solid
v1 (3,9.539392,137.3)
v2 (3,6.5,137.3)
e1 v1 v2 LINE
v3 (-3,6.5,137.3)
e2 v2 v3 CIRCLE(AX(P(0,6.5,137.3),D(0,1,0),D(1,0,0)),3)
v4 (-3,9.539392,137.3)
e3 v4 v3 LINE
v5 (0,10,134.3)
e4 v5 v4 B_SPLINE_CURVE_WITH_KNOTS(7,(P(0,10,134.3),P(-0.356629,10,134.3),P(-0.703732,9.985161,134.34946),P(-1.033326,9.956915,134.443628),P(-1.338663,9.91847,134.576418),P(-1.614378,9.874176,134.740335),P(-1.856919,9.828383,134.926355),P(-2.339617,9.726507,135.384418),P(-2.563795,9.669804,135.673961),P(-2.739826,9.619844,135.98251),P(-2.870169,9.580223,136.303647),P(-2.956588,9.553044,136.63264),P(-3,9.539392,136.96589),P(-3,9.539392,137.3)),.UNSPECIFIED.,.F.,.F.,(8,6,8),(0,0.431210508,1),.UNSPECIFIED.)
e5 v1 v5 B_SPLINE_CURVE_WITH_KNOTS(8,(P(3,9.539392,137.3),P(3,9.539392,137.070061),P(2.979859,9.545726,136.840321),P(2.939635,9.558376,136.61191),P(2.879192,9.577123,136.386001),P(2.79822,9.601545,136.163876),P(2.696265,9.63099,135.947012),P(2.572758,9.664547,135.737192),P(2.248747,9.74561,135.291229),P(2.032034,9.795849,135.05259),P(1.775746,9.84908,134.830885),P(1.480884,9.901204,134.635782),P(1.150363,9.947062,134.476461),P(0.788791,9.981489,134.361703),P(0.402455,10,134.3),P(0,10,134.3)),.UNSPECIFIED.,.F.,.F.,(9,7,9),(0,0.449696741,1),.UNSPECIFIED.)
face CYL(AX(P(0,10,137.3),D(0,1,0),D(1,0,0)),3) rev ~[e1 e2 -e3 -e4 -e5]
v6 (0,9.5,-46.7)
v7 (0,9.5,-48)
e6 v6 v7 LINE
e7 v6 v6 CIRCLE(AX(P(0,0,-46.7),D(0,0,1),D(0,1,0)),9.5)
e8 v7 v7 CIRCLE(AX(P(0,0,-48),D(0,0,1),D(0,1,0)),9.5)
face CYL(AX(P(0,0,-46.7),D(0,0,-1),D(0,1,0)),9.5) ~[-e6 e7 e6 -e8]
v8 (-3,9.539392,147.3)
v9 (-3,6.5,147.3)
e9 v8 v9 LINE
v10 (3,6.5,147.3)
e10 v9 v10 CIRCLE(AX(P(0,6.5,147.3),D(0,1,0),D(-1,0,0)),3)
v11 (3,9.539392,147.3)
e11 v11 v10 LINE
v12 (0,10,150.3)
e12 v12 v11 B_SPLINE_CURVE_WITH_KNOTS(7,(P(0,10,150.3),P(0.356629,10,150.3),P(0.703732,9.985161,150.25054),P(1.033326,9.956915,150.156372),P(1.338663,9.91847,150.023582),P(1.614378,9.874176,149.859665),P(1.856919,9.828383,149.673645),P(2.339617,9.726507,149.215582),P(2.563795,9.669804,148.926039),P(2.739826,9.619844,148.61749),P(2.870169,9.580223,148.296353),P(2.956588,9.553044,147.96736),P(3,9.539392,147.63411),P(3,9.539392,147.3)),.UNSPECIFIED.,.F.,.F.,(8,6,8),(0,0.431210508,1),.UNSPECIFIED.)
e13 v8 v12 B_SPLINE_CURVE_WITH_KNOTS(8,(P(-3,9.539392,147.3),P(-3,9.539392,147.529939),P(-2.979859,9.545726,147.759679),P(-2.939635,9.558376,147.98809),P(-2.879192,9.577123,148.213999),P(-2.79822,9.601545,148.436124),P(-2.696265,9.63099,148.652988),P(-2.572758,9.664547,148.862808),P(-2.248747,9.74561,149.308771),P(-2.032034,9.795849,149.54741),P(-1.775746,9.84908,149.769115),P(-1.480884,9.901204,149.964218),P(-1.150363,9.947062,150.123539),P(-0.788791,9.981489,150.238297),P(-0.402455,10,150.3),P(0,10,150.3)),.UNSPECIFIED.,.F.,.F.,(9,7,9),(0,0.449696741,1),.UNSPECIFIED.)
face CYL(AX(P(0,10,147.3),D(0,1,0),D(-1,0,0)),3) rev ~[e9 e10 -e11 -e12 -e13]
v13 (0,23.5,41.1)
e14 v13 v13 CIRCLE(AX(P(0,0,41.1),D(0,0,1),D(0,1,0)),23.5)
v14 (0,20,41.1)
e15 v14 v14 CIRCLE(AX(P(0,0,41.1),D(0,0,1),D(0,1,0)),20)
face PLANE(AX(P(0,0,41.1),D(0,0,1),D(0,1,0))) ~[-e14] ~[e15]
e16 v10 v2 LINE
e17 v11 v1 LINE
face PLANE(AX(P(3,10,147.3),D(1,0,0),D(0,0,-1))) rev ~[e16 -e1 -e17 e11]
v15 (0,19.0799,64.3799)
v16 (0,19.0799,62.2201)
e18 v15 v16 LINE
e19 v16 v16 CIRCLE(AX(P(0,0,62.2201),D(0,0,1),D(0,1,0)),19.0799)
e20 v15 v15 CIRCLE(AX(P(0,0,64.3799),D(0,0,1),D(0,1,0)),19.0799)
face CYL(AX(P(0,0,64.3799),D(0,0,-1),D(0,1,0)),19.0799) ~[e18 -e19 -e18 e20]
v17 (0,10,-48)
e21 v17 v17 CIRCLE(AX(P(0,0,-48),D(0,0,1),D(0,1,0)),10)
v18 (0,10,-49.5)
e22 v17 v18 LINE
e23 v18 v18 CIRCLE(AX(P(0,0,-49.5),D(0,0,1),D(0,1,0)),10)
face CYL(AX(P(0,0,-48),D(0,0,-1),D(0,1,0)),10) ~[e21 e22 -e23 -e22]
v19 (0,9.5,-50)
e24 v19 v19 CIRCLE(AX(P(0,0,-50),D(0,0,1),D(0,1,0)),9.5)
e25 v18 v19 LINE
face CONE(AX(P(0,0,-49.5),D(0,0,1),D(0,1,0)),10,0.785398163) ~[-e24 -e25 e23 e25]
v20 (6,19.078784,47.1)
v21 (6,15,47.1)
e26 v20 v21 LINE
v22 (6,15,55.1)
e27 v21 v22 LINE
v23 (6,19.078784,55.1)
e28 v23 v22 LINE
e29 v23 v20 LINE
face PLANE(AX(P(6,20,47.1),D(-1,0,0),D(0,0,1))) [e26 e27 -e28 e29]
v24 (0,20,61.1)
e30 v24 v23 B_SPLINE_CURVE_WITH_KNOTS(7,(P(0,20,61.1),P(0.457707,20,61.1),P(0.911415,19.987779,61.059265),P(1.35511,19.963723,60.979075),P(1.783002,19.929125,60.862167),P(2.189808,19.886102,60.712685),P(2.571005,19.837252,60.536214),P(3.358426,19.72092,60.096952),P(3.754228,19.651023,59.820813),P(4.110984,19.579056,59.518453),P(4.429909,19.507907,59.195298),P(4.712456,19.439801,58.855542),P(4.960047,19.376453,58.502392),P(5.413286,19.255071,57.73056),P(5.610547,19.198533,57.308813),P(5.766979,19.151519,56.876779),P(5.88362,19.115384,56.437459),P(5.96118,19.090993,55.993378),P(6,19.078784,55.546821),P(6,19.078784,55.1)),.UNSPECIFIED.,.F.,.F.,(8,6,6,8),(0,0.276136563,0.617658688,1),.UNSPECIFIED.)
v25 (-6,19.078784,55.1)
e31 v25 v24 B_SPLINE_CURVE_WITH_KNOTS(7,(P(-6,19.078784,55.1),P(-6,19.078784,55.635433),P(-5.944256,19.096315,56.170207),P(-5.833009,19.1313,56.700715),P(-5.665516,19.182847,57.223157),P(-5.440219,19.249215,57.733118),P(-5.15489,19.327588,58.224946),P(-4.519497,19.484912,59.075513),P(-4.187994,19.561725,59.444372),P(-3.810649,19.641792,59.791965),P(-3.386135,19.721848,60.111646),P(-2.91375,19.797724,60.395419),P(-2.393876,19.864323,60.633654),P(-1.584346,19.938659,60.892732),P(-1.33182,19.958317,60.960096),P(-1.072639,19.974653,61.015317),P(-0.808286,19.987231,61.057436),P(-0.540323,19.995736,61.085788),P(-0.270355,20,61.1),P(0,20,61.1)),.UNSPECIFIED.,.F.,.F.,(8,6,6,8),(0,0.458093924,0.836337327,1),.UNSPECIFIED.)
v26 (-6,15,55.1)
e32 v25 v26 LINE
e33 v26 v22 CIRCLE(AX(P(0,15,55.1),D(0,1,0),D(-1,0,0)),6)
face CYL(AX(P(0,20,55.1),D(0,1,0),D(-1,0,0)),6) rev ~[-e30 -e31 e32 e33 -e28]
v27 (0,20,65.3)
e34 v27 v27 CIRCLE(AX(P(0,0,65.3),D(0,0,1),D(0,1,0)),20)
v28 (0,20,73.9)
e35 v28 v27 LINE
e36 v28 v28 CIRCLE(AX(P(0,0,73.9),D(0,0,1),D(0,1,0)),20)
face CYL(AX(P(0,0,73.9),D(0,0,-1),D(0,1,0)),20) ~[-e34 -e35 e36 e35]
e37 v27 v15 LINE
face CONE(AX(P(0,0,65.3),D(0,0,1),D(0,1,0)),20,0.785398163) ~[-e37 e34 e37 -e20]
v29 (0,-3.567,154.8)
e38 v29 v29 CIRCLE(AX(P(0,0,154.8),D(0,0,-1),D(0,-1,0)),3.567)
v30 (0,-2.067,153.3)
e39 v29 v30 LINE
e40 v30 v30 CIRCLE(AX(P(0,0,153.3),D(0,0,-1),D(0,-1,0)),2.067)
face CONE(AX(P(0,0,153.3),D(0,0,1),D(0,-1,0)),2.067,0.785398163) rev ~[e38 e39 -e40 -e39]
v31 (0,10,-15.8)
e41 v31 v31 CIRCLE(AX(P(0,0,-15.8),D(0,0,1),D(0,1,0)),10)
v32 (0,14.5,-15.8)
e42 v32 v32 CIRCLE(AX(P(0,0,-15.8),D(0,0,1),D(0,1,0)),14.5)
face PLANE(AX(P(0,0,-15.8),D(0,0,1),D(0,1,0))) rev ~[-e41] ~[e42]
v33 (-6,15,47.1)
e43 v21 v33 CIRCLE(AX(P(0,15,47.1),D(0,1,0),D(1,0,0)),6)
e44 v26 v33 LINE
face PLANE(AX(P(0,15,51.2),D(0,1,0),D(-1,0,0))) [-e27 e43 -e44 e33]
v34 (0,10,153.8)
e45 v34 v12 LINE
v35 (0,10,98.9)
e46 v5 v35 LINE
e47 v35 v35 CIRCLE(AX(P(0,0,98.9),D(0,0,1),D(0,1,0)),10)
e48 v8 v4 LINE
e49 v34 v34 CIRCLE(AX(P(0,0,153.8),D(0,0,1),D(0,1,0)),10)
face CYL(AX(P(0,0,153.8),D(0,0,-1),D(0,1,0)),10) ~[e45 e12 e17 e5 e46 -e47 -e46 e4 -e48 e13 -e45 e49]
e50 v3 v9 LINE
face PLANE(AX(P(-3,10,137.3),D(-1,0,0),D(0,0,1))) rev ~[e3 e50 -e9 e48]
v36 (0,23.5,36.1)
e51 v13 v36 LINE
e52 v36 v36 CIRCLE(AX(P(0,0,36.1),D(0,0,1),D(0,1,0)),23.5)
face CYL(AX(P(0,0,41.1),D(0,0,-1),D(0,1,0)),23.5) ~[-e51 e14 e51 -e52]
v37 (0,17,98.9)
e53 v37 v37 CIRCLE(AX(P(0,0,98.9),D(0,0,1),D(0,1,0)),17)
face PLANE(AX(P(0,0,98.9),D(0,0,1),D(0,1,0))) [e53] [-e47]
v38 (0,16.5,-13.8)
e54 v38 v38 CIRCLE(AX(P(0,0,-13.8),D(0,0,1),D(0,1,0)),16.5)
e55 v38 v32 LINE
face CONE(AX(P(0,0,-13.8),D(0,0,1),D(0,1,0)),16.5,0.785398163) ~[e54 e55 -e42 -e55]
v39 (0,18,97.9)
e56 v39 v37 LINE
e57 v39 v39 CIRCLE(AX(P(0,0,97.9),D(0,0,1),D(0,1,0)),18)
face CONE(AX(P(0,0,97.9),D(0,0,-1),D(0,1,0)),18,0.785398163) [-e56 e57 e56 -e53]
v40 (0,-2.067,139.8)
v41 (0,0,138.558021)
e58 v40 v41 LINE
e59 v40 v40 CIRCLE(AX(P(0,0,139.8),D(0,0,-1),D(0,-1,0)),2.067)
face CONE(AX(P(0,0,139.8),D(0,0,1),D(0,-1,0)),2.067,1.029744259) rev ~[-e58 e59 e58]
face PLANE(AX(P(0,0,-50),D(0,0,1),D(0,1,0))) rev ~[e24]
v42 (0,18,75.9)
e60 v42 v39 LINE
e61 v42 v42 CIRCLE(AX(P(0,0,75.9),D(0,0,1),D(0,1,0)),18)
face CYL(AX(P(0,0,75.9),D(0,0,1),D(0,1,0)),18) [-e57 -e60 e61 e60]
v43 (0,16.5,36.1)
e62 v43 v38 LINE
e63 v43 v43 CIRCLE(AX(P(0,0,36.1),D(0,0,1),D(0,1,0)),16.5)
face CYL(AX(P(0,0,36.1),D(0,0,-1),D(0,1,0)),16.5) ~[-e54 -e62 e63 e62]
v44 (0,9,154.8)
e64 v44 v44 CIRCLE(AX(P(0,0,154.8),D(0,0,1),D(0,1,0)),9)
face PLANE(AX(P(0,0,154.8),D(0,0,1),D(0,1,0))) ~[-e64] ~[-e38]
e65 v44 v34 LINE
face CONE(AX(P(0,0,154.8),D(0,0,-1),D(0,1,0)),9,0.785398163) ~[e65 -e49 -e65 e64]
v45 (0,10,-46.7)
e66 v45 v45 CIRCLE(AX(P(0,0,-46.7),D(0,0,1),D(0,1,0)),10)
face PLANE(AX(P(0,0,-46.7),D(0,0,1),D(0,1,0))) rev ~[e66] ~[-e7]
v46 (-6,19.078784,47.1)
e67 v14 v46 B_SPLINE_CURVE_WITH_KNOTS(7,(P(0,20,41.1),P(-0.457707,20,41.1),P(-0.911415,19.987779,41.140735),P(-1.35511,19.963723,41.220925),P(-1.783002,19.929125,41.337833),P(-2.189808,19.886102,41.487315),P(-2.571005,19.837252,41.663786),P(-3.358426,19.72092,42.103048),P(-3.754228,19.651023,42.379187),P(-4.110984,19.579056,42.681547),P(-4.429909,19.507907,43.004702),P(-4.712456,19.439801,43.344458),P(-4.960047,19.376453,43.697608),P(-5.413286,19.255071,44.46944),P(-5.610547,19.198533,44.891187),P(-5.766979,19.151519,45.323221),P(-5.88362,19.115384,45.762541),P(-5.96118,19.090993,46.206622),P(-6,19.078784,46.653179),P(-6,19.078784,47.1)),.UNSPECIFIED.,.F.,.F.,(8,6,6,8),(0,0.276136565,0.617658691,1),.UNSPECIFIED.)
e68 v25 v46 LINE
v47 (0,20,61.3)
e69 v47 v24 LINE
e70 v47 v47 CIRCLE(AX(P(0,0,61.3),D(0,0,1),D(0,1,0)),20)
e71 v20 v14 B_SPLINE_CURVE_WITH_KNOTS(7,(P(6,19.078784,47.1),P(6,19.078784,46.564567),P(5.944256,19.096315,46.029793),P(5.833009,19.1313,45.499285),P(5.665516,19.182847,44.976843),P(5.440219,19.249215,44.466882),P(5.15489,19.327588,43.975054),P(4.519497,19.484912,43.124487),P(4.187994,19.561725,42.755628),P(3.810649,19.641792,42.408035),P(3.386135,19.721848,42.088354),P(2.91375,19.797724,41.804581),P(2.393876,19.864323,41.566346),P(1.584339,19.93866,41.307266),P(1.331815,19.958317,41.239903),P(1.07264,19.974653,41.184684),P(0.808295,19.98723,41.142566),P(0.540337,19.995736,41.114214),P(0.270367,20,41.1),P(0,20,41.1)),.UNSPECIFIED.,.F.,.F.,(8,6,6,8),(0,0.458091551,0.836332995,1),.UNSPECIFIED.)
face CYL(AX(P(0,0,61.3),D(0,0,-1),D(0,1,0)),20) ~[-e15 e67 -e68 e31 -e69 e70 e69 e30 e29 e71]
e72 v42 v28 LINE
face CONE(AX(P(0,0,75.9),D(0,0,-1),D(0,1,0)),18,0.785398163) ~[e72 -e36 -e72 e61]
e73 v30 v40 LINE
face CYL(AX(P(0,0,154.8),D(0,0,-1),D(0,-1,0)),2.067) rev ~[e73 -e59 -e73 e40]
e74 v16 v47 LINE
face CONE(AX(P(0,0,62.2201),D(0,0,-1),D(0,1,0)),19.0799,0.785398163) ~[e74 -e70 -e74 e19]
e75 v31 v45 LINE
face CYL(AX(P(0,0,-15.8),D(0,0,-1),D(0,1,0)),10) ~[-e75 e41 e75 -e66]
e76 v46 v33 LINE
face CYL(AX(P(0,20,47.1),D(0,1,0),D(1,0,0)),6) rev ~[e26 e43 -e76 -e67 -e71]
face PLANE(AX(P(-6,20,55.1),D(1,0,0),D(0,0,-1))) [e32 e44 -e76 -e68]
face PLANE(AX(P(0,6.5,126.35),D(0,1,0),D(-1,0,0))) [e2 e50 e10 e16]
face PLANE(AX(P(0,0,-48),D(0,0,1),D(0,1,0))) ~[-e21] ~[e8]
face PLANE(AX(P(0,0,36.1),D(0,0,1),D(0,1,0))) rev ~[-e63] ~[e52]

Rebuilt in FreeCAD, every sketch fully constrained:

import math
import FreeCAD as App
import Part
import Sketcher
from FreeCAD import Vector


def edges_at(feature, points):
    """Names of the edges that pass closest to the given points."""
    edges = feature.Shape.Edges
    near = lambda p: min(range(len(edges)), key=lambda i: edges[i].distToShape(Part.Vertex(*p))[0])
    return sorted({f"Edge{near(p) + 1}" for p in points})

doc = App.newDocument("Part")
body = doc.addObject("PartDesign::Body", "Body")

# Sketch on YZ plane
sketch1 = doc.addObject("Sketcher::SketchObject", "Sketch")
body.addObject(sketch1)
sketch1.AttachmentSupport = (doc.YZ_Plane, [""])
sketch1.MapMode = "FlatFace"
sketch1.addGeometry(Part.LineSegment(Vector(9, 154.8, 0), Vector(0, 154.8, 0)), False)
sketch1.addGeometry(Part.LineSegment(Vector(0, 154.8, 0), Vector(0, -50, 0)), False)
sketch1.addGeometry(Part.LineSegment(Vector(0, -50, 0), Vector(9.5, -50, 0)), False)
sketch1.addGeometry(Part.LineSegment(Vector(9.5, -50, 0), Vector(10, -49.5, 0)), False)
sketch1.addGeometry(Part.LineSegment(Vector(10, -49.5, 0), Vector(10, -48, 0)), False)
sketch1.addGeometry(Part.LineSegment(Vector(10, -48, 0), Vector(9.5, -48, 0)), False)
sketch1.addGeometry(Part.LineSegment(Vector(9.5, -48, 0), Vector(9.5, -46.7, 0)), False)
sketch1.addGeometry(Part.LineSegment(Vector(9.5, -46.7, 0), Vector(10, -46.7, 0)), False)
sketch1.addGeometry(Part.LineSegment(Vector(10, -46.7, 0), Vector(10, -15.8, 0)), False)
sketch1.addGeometry(Part.LineSegment(Vector(10, -15.8, 0), Vector(14.5, -15.8, 0)), False)
sketch1.addGeometry(Part.LineSegment(Vector(14.5, -15.8, 0), Vector(16.5, -13.8, 0)), False)
sketch1.addGeometry(Part.LineSegment(Vector(16.5, -13.8, 0), Vector(16.5, 36.1, 0)), False)
sketch1.addGeometry(Part.LineSegment(Vector(16.5, 36.1, 0), Vector(23.5, 36.1, 0)), False)
sketch1.addGeometry(Part.LineSegment(Vector(23.5, 36.1, 0), Vector(23.5, 41.1, 0)), False)
sketch1.addGeometry(Part.LineSegment(Vector(23.5, 41.1, 0), Vector(20, 41.1, 0)), False)
sketch1.addGeometry(Part.LineSegment(Vector(20, 41.1, 0), Vector(20, 61.3, 0)), False)
sketch1.addGeometry(Part.LineSegment(Vector(20, 61.3, 0), Vector(19.1, 62.2, 0)), False)
sketch1.addGeometry(Part.LineSegment(Vector(19.1, 62.2, 0), Vector(19.1, 64.4, 0)), False)
sketch1.addGeometry(Part.LineSegment(Vector(19.1, 64.4, 0), Vector(20, 65.3, 0)), False)
sketch1.addGeometry(Part.LineSegment(Vector(20, 65.3, 0), Vector(20, 73.9, 0)), False)
sketch1.addGeometry(Part.LineSegment(Vector(20, 73.9, 0), Vector(18, 75.9, 0)), False)
sketch1.addGeometry(Part.LineSegment(Vector(18, 75.9, 0), Vector(18, 97.9, 0)), False)
sketch1.addGeometry(Part.LineSegment(Vector(18, 97.9, 0), Vector(17, 98.9, 0)), False)
sketch1.addGeometry(Part.LineSegment(Vector(17, 98.9, 0), Vector(10, 98.9, 0)), False)
sketch1.addGeometry(Part.LineSegment(Vector(10, 98.9, 0), Vector(10, 153.8, 0)), False)
sketch1.addGeometry(Part.LineSegment(Vector(10, 153.8, 0), Vector(9, 154.8, 0)), False)
sketch1.addConstraint(Sketcher.Constraint("Coincident", 0, 2, 1, 1))
sketch1.addConstraint(Sketcher.Constraint("Coincident", 1, 2, 2, 1))
sketch1.addConstraint(Sketcher.Constraint("Coincident", 2, 2, 3, 1))
sketch1.addConstraint(Sketcher.Constraint("Coincident", 3, 2, 4, 1))
sketch1.addConstraint(Sketcher.Constraint("Coincident", 4, 2, 5, 1))
sketch1.addConstraint(Sketcher.Constraint("Coincident", 5, 2, 6, 1))
sketch1.addConstraint(Sketcher.Constraint("Coincident", 6, 2, 7, 1))
sketch1.addConstraint(Sketcher.Constraint("Coincident", 7, 2, 8, 1))
sketch1.addConstraint(Sketcher.Constraint("Coincident", 8, 2, 9, 1))
sketch1.addConstraint(Sketcher.Constraint("Coincident", 9, 2, 10, 1))
sketch1.addConstraint(Sketcher.Constraint("Coincident", 10, 2, 11, 1))
sketch1.addConstraint(Sketcher.Constraint("Coincident", 11, 2, 12, 1))
sketch1.addConstraint(Sketcher.Constraint("Coincident", 12, 2, 13, 1))
sketch1.addConstraint(Sketcher.Constraint("Coincident", 13, 2, 14, 1))
sketch1.addConstraint(Sketcher.Constraint("Coincident", 14, 2, 15, 1))
sketch1.addConstraint(Sketcher.Constraint("Coincident", 15, 2, 16, 1))
sketch1.addConstraint(Sketcher.Constraint("Coincident", 16, 2, 17, 1))
sketch1.addConstraint(Sketcher.Constraint("Coincident", 17, 2, 18, 1))
sketch1.addConstraint(Sketcher.Constraint("Coincident", 18, 2, 19, 1))
sketch1.addConstraint(Sketcher.Constraint("Coincident", 19, 2, 20, 1))
sketch1.addConstraint(Sketcher.Constraint("Coincident", 20, 2, 21, 1))
sketch1.addConstraint(Sketcher.Constraint("Coincident", 21, 2, 22, 1))
sketch1.addConstraint(Sketcher.Constraint("Coincident", 22, 2, 23, 1))
sketch1.addConstraint(Sketcher.Constraint("Coincident", 23, 2, 24, 1))
sketch1.addConstraint(Sketcher.Constraint("Coincident", 24, 2, 25, 1))
sketch1.addConstraint(Sketcher.Constraint("Coincident", 25, 2, 0, 1))
sketch1.addConstraint(Sketcher.Constraint("Horizontal", 0))
sketch1.addConstraint(Sketcher.Constraint("Vertical", 1))
sketch1.addConstraint(Sketcher.Constraint("Horizontal", 2))
sketch1.addConstraint(Sketcher.Constraint("Vertical", 4))
sketch1.addConstraint(Sketcher.Constraint("Horizontal", 5))
sketch1.addConstraint(Sketcher.Constraint("Vertical", 6))
sketch1.addConstraint(Sketcher.Constraint("Horizontal", 7))
sketch1.addConstraint(Sketcher.Constraint("Vertical", 8))
sketch1.addConstraint(Sketcher.Constraint("Horizontal", 9))
sketch1.addConstraint(Sketcher.Constraint("Vertical", 11))
sketch1.addConstraint(Sketcher.Constraint("Horizontal", 12))
sketch1.addConstraint(Sketcher.Constraint("Vertical", 13))
sketch1.addConstraint(Sketcher.Constraint("Horizontal", 14))
sketch1.addConstraint(Sketcher.Constraint("Vertical", 15))
sketch1.addConstraint(Sketcher.Constraint("Vertical", 17))
sketch1.addConstraint(Sketcher.Constraint("Vertical", 19))
sketch1.addConstraint(Sketcher.Constraint("Vertical", 21))
sketch1.addConstraint(Sketcher.Constraint("Horizontal", 23))
sketch1.addConstraint(Sketcher.Constraint("Vertical", 24))
sketch1.addConstraint(Sketcher.Constraint("PointOnObject", 0, 2, -2))
sketch1.addConstraint(Sketcher.Constraint("Parallel", 3, 10))
sketch1.addConstraint(Sketcher.Constraint("Perpendicular", 10, 16))
sketch1.addConstraint(Sketcher.Constraint("Perpendicular", 16, 18))
sketch1.addConstraint(Sketcher.Constraint("Perpendicular", 18, 20))
sketch1.addConstraint(Sketcher.Constraint("Parallel", 20, 22))
sketch1.addConstraint(Sketcher.Constraint("Parallel", 22, 25))
sketch1.addConstraint(Sketcher.Constraint("Vertical", 2, 2, 5, 2))
sketch1.addConstraint(Sketcher.Constraint("Vertical", 4, 2, 7, 2))
sketch1.addConstraint(Sketcher.Constraint("Vertical", 15, 2, 18, 2))
sketch1.addConstraint(Sketcher.Constraint("Vertical", 8, 2, 23, 2))
sketch1.addConstraint(Sketcher.Constraint("Equal", 12, 23))
sketch1.addConstraint(Sketcher.Constraint("Equal", 16, 18))
sketch1.addConstraint(Sketcher.Constraint("Equal", 10, 20))
sketch1.addConstraint(Sketcher.Constraint("Equal", 22, 25))
sketch1.addConstraint(Sketcher.Constraint("DistanceY", 13, 1, 13, 2, 5.0))
sketch1.addConstraint(Sketcher.Constraint("DistanceY", 4, 1, 4, 2, 1.5))
sketch1.addConstraint(Sketcher.Constraint("DistanceY", 6, 1, 6, 2, 1.3))
sketch1.addConstraint(Sketcher.Constraint("DistanceY", 8, 1, 8, 2, 30.9))
sketch1.addConstraint(Sketcher.Constraint("DistanceY", 19, 1, 19, 2, 8.6))
sketch1.addConstraint(Sketcher.Constraint("DistanceY", 1, 2, -1, 1, 50.0))
sketch1.addConstraint(Sketcher.Constraint("DistanceX", -1, 1, 14, 2, 20.0))
sketch1.addConstraint(Sketcher.Constraint("DistanceY", 2, 2, 4, 2, 2.0))
sketch1.addConstraint(Sketcher.Constraint("DistanceX", 6, 2, 9, 2, 5.0))
sketch1.addConstraint(Sketcher.Constraint("DistanceX", 9, 2, 10, 2, 2.0))
sketch1.addConstraint(Sketcher.Constraint("DistanceX", 22, 2, 21, 2, 1.0))
sketch1.addConstraint(Sketcher.Constraint("DistanceY", 19, 2, 22, 2, 25.0))
sketch1.addConstraint(Sketcher.Constraint("DistanceX", 0, 2, 0, 1, 9.0))
sketch1.addConstraint(Sketcher.Constraint("DistanceY", 1, 2, 1, 1, 204.8))
sketch1.addConstraint(Sketcher.Constraint("DistanceY", 11, 1, 11, 2, 49.9))
sketch1.addConstraint(Sketcher.Constraint("DistanceY", 15, 1, 15, 2, 20.2))
sketch1.addConstraint(Sketcher.Constraint("DistanceY", 24, 1, 24, 2, 54.9))
sketch1.addConstraint(Sketcher.Constraint("DistanceX", -1, 1, 16, 2, 19.08))
revolution = doc.addObject("PartDesign::Revolution", "Revolution")
body.addObject(revolution)
revolution.Profile = sketch1
revolution.ReferenceAxis = (sketch1, ["V_Axis"])
revolution.Angle = 360

# Sketch on XZ plane
sketch2 = doc.addObject("Sketcher::SketchObject", "Sketch001")
body.addObject(sketch2)
sketch2.AttachmentSupport = (doc.XZ_Plane, [""])
sketch2.MapMode = "FlatFace"
sketch2.AttachmentOffset = App.Placement(Vector(0, 0, -20), App.Rotation())
sketch2.addGeometry(Part.LineSegment(Vector(-6, 47, 0), Vector(-6, 55, 0)), False)
sketch2.addGeometry(Part.ArcOfCircle(Part.Circle(Vector(0, 55, 0), Vector(0, 0, 1), 6), math.radians(0), math.radians(180)), False)
sketch2.addGeometry(Part.LineSegment(Vector(6, 55, 0), Vector(6, 47, 0)), False)
sketch2.addGeometry(Part.ArcOfCircle(Part.Circle(Vector(0, 47, 0), Vector(0, 0, 1), 6), math.radians(180), math.radians(360)), False)
sketch2.addConstraint(Sketcher.Constraint("Tangent", 0, 2, 1, 2))
sketch2.addConstraint(Sketcher.Constraint("Tangent", 1, 1, 2, 1))
sketch2.addConstraint(Sketcher.Constraint("Tangent", 2, 2, 3, 2))
sketch2.addConstraint(Sketcher.Constraint("Tangent", 3, 1, 0, 1))
sketch2.addConstraint(Sketcher.Constraint("Vertical", 0))
sketch2.addConstraint(Sketcher.Constraint("Vertical", 2))
sketch2.addConstraint(Sketcher.Constraint("PointOnObject", 1, 3, -2))
sketch2.addConstraint(Sketcher.Constraint("Radius", 1, 6.0))
sketch2.addConstraint(Sketcher.Constraint("DistanceY", 0, 1, 0, 2, 8.0))
sketch2.addConstraint(Sketcher.Constraint("DistanceY", -1, 1, 1, 3, 55.1))
pocket1 = doc.addObject("PartDesign::Pocket", "Pocket")
body.addObject(pocket1)
pocket1.Profile = sketch2
pocket1.Length = 5
pocket1.Reversed = True

# Sketch on XZ plane
sketch3 = doc.addObject("Sketcher::SketchObject", "Sketch002")
body.addObject(sketch3)
sketch3.AttachmentSupport = (doc.XZ_Plane, [""])
sketch3.MapMode = "FlatFace"
sketch3.AttachmentOffset = App.Placement(Vector(0, 0, -10), App.Rotation())
sketch3.addGeometry(Part.ArcOfCircle(Part.Circle(Vector(0, 137.3, 0), Vector(0, 0, 1), 3), math.radians(180), math.radians(360)), False)
sketch3.addGeometry(Part.LineSegment(Vector(-3, 137.3, 0), Vector(-3, 147.3, 0)), False)
sketch3.addGeometry(Part.ArcOfCircle(Part.Circle(Vector(0, 147.3, 0), Vector(0, 0, 1), 3), math.radians(0), math.radians(180)), False)
sketch3.addGeometry(Part.LineSegment(Vector(3, 147.3, 0), Vector(3, 137.3, 0)), False)
sketch3.addConstraint(Sketcher.Constraint("Tangent", 0, 1, 1, 1))
sketch3.addConstraint(Sketcher.Constraint("Tangent", 1, 2, 2, 2))
sketch3.addConstraint(Sketcher.Constraint("Tangent", 2, 1, 3, 1))
sketch3.addConstraint(Sketcher.Constraint("Tangent", 3, 2, 0, 2))
sketch3.addConstraint(Sketcher.Constraint("Vertical", 1))
sketch3.addConstraint(Sketcher.Constraint("Vertical", 3))
sketch3.addConstraint(Sketcher.Constraint("PointOnObject", 0, 3, -2))
sketch3.addConstraint(Sketcher.Constraint("Radius", 0, 3.0))
sketch3.addConstraint(Sketcher.Constraint("DistanceY", 1, 1, 1, 2, 10.0))
sketch3.addConstraint(Sketcher.Constraint("DistanceY", -1, 1, 0, 3, 137.3))
pocket2 = doc.addObject("PartDesign::Pocket", "Pocket001")
body.addObject(pocket2)
pocket2.Profile = sketch3
pocket2.Length = 3.5
pocket2.Reversed = True

# Sketch on XY plane
sketch4 = doc.addObject("Sketcher::SketchObject", "Sketch003")
body.addObject(sketch4)
sketch4.AttachmentSupport = (doc.XY_Plane, [""])
sketch4.MapMode = "FlatFace"
sketch4.AttachmentOffset = App.Placement(Vector(0, 0, 154.8), App.Rotation())
sketch4.addGeometry(Part.Circle(Vector(0, 0, 0), Vector(0, 0, 1), 2.1), False)
sketch4.addConstraint(Sketcher.Constraint("Coincident", 0, 3, -1, 1))
sketch4.addConstraint(Sketcher.Constraint("Diameter", 0, 4.134))
doc.recompute()
hole = doc.addObject("PartDesign::Hole", "Hole")
body.addObject(hole)
hole.Profile = sketch4
hole.ThreadType = "None"
hole.Diameter = 4.134
hole.DepthType = "Dimension"
hole.Depth = 15
hole.DrillPoint = "Angled"
hole.DrillPointAngle = 118
doc.recompute()

chamfer = doc.addObject("PartDesign::Chamfer", "Chamfer")
body.addObject(chamfer)
chamfer.Base = (hole, edges_at(hole, [(0, 2.067, 154.8)]))
chamfer.Size = 1.5

doc.recompute()
